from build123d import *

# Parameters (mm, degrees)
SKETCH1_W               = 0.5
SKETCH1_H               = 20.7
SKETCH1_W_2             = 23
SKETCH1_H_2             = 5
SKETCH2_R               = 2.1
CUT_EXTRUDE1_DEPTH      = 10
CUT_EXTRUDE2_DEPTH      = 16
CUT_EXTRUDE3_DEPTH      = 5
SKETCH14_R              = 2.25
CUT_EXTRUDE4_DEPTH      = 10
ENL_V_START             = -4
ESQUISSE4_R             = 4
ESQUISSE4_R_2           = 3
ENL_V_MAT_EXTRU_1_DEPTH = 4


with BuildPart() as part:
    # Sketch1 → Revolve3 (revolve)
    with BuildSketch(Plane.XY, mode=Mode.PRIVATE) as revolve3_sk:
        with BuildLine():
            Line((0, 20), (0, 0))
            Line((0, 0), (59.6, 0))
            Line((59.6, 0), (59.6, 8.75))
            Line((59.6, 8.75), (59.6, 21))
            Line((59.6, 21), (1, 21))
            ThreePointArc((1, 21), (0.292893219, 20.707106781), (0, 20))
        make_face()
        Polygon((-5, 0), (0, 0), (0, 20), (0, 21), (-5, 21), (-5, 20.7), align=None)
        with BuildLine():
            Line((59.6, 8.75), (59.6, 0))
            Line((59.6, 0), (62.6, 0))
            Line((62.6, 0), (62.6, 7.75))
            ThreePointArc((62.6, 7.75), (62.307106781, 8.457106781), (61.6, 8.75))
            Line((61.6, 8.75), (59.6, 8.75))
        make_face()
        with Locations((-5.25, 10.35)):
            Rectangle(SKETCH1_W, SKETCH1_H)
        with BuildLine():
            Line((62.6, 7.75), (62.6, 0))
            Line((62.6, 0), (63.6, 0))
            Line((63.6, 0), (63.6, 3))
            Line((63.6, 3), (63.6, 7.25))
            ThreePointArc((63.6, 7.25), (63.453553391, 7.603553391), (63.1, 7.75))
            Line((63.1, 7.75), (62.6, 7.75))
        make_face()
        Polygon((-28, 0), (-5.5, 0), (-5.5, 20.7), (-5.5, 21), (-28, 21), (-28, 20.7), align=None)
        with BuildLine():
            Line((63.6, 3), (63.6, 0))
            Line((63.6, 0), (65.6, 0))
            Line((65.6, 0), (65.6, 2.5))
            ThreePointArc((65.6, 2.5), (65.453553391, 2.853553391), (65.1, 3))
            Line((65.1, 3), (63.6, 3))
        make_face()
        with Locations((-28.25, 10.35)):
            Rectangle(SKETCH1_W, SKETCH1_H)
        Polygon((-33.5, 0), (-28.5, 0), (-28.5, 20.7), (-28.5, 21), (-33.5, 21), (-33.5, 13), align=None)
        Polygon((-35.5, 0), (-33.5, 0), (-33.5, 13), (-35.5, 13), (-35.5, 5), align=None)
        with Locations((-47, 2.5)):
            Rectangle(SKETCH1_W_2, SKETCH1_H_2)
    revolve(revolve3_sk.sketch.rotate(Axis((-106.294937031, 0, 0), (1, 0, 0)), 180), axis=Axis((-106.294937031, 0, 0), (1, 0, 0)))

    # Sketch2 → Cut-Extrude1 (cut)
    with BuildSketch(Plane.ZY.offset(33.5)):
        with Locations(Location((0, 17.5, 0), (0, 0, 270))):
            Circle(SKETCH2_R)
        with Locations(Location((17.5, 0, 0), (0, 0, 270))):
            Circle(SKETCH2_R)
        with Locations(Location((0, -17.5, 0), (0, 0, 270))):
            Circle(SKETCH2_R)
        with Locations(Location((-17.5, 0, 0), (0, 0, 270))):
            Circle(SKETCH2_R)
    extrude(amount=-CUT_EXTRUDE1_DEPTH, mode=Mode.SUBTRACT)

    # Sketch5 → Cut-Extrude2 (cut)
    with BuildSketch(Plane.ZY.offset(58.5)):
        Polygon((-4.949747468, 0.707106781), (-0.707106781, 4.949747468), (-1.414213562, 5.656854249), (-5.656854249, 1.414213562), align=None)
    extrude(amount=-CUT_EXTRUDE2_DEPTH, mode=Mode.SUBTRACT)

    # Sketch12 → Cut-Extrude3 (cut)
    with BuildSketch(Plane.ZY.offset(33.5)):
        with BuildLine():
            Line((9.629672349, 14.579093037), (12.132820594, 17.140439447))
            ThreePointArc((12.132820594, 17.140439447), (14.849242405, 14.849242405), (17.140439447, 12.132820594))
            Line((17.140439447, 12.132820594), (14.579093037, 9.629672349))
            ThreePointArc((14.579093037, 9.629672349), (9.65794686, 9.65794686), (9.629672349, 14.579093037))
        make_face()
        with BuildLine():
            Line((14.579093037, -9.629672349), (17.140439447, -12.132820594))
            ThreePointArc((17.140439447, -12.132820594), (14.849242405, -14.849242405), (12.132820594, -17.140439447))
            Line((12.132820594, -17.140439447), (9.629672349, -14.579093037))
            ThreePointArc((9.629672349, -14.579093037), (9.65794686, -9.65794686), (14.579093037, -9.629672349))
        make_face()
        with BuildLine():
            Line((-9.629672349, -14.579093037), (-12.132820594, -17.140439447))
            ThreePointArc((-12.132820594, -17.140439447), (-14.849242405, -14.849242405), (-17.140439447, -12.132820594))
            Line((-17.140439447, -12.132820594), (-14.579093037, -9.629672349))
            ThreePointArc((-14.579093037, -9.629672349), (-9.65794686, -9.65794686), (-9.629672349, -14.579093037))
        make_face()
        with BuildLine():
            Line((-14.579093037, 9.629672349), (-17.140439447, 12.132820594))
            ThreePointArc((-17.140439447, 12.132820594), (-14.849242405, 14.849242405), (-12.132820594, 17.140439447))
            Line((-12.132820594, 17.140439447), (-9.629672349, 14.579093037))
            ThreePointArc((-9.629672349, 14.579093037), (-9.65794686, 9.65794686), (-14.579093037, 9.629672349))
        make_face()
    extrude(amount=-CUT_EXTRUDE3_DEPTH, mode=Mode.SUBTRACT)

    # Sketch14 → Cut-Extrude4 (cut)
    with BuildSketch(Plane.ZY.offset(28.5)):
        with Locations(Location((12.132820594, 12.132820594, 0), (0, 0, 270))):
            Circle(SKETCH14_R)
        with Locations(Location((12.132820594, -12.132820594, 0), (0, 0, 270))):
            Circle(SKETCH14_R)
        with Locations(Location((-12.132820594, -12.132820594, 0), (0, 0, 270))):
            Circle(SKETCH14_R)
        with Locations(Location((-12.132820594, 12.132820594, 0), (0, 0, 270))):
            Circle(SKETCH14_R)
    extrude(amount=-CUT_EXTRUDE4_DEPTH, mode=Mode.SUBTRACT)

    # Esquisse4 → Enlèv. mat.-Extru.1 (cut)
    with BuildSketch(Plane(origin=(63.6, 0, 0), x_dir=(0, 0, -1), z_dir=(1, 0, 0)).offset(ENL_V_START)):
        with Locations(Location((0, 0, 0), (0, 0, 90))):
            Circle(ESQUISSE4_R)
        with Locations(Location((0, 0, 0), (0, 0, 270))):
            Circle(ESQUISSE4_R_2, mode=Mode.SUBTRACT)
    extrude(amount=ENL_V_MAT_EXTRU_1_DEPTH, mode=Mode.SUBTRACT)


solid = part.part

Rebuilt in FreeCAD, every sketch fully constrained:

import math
import FreeCAD as App
import Part
import Sketcher
from FreeCAD import Vector
Q = App.Units.Quantity


def add_polygon(sketch, points):
    """Adds a closed chain of lines whose ends are joined by coincident constraints."""
    first, n = sketch.GeometryCount, len(points)
    for a, b in zip(points, points[1:] + points[:1]):
        sketch.addGeometry(Part.LineSegment(App.Vector(*a, 0), App.Vector(*b, 0)), False)
    for i in range(n):
        sketch.addConstraint(Sketcher.Constraint("Coincident", first + i, 2, first + (i + 1) % n, 1))

doc = App.newDocument("Part")
body = doc.addObject("PartDesign::Body", "Body")

# Sketch on XY plane
sketch1 = body.newObject("Sketcher::SketchObject", "Sketch")
sketch1.AttachmentSupport = (doc.getObject("XY_Plane"), [""])
sketch1.MapMode = "FlatFace"
sketch1.addGeometry(Part.LineSegment(Vector(59.6, 8.75, 0), Vector(59.6, 21, 0)), False)
sketch1.addGeometry(Part.LineSegment(Vector(59.6, 21, 0), Vector(1, 21, 0)), False)
sketch1.addGeometry(Part.ArcOfCircle(Part.Circle(Vector(1, 20, 0), Vector(0, 0, 1), 1), math.radians(90), math.radians(180)), False)
sketch1.addGeometry(Part.LineSegment(Vector(0, 20, 0), Vector(0, 21, 0)), False)
sketch1.addGeometry(Part.LineSegment(Vector(0, 21, 0), Vector(-5, 21, 0)), False)
sketch1.addGeometry(Part.LineSegment(Vector(-5, 21, 0), Vector(-5, 20.7, 0)), False)
sketch1.addGeometry(Part.LineSegment(Vector(-5, 20.7, 0), Vector(-5.5, 20.7, 0)), False)
sketch1.addGeometry(Part.LineSegment(Vector(-5.5, 20.7, 0), Vector(-5.5, 21, 0)), False)
sketch1.addGeometry(Part.LineSegment(Vector(-5.5, 21, 0), Vector(-28, 21, 0)), False)
sketch1.addGeometry(Part.LineSegment(Vector(-28, 21, 0), Vector(-28, 20.7, 0)), False)
sketch1.addGeometry(Part.LineSegment(Vector(-28, 20.7, 0), Vector(-28.5, 20.7, 0)), False)
sketch1.addGeometry(Part.LineSegment(Vector(-28.5, 20.7, 0), Vector(-28.5, 21, 0)), False)
sketch1.addGeometry(Part.LineSegment(Vector(-28.5, 21, 0), Vector(-33.5, 21, 0)), False)
sketch1.addGeometry(Part.LineSegment(Vector(-33.5, 21, 0), Vector(-33.5, 13, 0)), False)
sketch1.addGeometry(Part.LineSegment(Vector(-33.5, 13, 0), Vector(-35.5, 13, 0)), False)
sketch1.addGeometry(Part.LineSegment(Vector(-35.5, 13, 0), Vector(-35.5, 5, 0)), False)
sketch1.addGeometry(Part.LineSegment(Vector(-35.5, 5, 0), Vector(-58.5, 5, 0)), False)
sketch1.addGeometry(Part.LineSegment(Vector(-58.5, 5, 0), Vector(-58.5, 0, 0)), False)
sketch1.addGeometry(Part.LineSegment(Vector(-58.5, 0, 0), Vector(65.6, 0, 0)), False)
sketch1.addGeometry(Part.LineSegment(Vector(65.6, 0, 0), Vector(65.6, 2.5, 0)), False)
sketch1.addGeometry(Part.ArcOfCircle(Part.Circle(Vector(65.1, 2.5, 0), Vector(0, 0, 1), 0.5), math.radians(0), math.radians(90)), False)
sketch1.addGeometry(Part.LineSegment(Vector(65.1, 3, 0), Vector(63.6, 3, 0)), False)
sketch1.addGeometry(Part.LineSegment(Vector(63.6, 3, 0), Vector(63.6, 7.25, 0)), False)
sketch1.addGeometry(Part.ArcOfCircle(Part.Circle(Vector(63.1, 7.25, 0), Vector(0, 0, 1), 0.5), math.radians(0), math.radians(90)), False)
sketch1.addGeometry(Part.LineSegment(Vector(63.1, 7.75, 0), Vector(62.6, 7.75, 0)), False)
sketch1.addGeometry(Part.ArcOfCircle(Part.Circle(Vector(61.6, 7.75, 0), Vector(0, 0, 1), 1), math.radians(0), math.radians(90)), False)
sketch1.addGeometry(Part.LineSegment(Vector(61.6, 8.75, 0), Vector(59.6, 8.75, 0)), False)
sketch1.addConstraint(Sketcher.Constraint("Coincident", 0, 2, 1, 1))
sketch1.addConstraint(Sketcher.Constraint("Tangent", 1, 2, 2, 1))
sketch1.addConstraint(Sketcher.Constraint("Tangent", 2, 2, 3, 1))
sketch1.addConstraint(Sketcher.Constraint("Coincident", 3, 2, 4, 1))
sketch1.addConstraint(Sketcher.Constraint("Coincident", 4, 2, 5, 1))
sketch1.addConstraint(Sketcher.Constraint("Coincident", 5, 2, 6, 1))
sketch1.addConstraint(Sketcher.Constraint("Coincident", 6, 2, 7, 1))
sketch1.addConstraint(Sketcher.Constraint("Coincident", 7, 2, 8, 1))
sketch1.addConstraint(Sketcher.Constraint("Coincident", 8, 2, 9, 1))
sketch1.addConstraint(Sketcher.Constraint("Coincident", 9, 2, 10, 1))
sketch1.addConstraint(Sketcher.Constraint("Coincident", 10, 2, 11, 1))
sketch1.addConstraint(Sketcher.Constraint("Coincident", 11, 2, 12, 1))
sketch1.addConstraint(Sketcher.Constraint("Coincident", 12, 2, 13, 1))
sketch1.addConstraint(Sketcher.Constraint("Coincident", 13, 2, 14, 1))
sketch1.addConstraint(Sketcher.Constraint("Coincident", 14, 2, 15, 1))
sketch1.addConstraint(Sketcher.Constraint("Coincident", 15, 2, 16, 1))
sketch1.addConstraint(Sketcher.Constraint("Coincident", 16, 2, 17, 1))
sketch1.addConstraint(Sketcher.Constraint("Coincident", 17, 2, 18, 1))
sketch1.addConstraint(Sketcher.Constraint("Coincident", 18, 2, 19, 1))
sketch1.addConstraint(Sketcher.Constraint("Tangent", 19, 2, 20, 1))
sketch1.addConstraint(Sketcher.Constraint("Tangent", 20, 2, 21, 1))
sketch1.addConstraint(Sketcher.Constraint("Coincident", 21, 2, 22, 1))
sketch1.addConstraint(Sketcher.Constraint("Tangent", 22, 2, 23, 1))
sketch1.addConstraint(Sketcher.Constraint("Tangent", 23, 2, 24, 1))
sketch1.addConstraint(Sketcher.Constraint("Coincident", 24, 2, 25, 1))
sketch1.addConstraint(Sketcher.Constraint("Tangent", 25, 2, 26, 1))
sketch1.addConstraint(Sketcher.Constraint("Coincident", 26, 2, 0, 1))
sketch1.addConstraint(Sketcher.Constraint("Vertical", 0))
sketch1.addConstraint(Sketcher.Constraint("Horizontal", 1))
sketch1.addConstraint(Sketcher.Constraint("Vertical", 3))
sketch1.addConstraint(Sketcher.Constraint("Horizontal", 4))
sketch1.addConstraint(Sketcher.Constraint("Vertical", 5))
sketch1.addConstraint(Sketcher.Constraint("Horizontal", 6))
sketch1.addConstraint(Sketcher.Constraint("Vertical", 7))
sketch1.addConstraint(Sketcher.Constraint("Horizontal", 8))
sketch1.addConstraint(Sketcher.Constraint("Vertical", 9))
sketch1.addConstraint(Sketcher.Constraint("Horizontal", 10))
sketch1.addConstraint(Sketcher.Constraint("Vertical", 11))
sketch1.addConstraint(Sketcher.Constraint("Horizontal", 12))
sketch1.addConstraint(Sketcher.Constraint("Vertical", 13))
sketch1.addConstraint(Sketcher.Constraint("Horizontal", 14))
sketch1.addConstraint(Sketcher.Constraint("Vertical", 15))
sketch1.addConstraint(Sketcher.Constraint("Horizontal", 16))
sketch1.addConstraint(Sketcher.Constraint("Vertical", 17))
sketch1.addConstraint(Sketcher.Constraint("Horizontal", 18))
sketch1.addConstraint(Sketcher.Constraint("Vertical", 19))
sketch1.addConstraint(Sketcher.Constraint("Horizontal", 21))
sketch1.addConstraint(Sketcher.Constraint("Vertical", 22))
sketch1.addConstraint(Sketcher.Constraint("Horizontal", 24))
sketch1.addConstraint(Sketcher.Constraint("Horizontal", 26))
sketch1.addConstraint(Sketcher.Constraint("Equal", 20, 23))
sketch1.addConstraint(Sketcher.Constraint("Equal", 2, 25))
sketch1.addConstraint(Sketcher.Constraint("PointOnObject", 2, 2, -2))
sketch1.addConstraint(Sketcher.Constraint("PointOnObject", 17, 2, -1))
sketch1.addConstraint(Sketcher.Constraint("Horizontal", 1, 2, 3, 2))
sketch1.addConstraint(Sketcher.Constraint("Horizontal", 4, 2, 7, 2))
sketch1.addConstraint(Sketcher.Constraint("Horizontal", 6, 2, 9, 2))
sketch1.addConstraint(Sketcher.Constraint("Horizontal", 8, 2, 11, 2))
sketch1.addConstraint(Sketcher.Constraint("Horizontal", 25, 3, 23, 2))
sketch1.addConstraint(Sketcher.Constraint("Equal", 6, 10))
sketch1.addConstraint(Sketcher.Constraint("Equal", 4, 12))
sketch1.addConstraint(Sketcher.Constraint("Equal", 10, 24))
sketch1.addConstraint(Sketcher.Constraint("Equal", 14, 26))
sketch1.addConstraint(Sketcher.Constraint("Equal", 13, 15))
sketch1.addConstraint(Sketcher.Constraint("Equal", 12, 17))
sketch1.addConstraint(Sketcher.Constraint("Radius", 2, Q("1 mm")))
sketch1.addConstraint(Sketcher.Constraint("Radius", 20, Q("0.5 mm")))
sketch1.addConstraint(Sketcher.Constraint("DistanceX", 4, 2, 4, 1, Q("5 mm")))
sketch1.addConstraint(Sketcher.Constraint("DistanceX", 14, 2, 14, 1, Q("2 mm")))
sketch1.addConstraint(Sketcher.Constraint("DistanceX", 16, 2, 16, 1, Q("23 mm")))
sketch1.addConstraint(Sketcher.Constraint("DistanceY", 13, 2, 13, 1, Q("8 mm")))
sketch1.addConstraint(Sketcher.Constraint("DistanceX", 1, 2, 1, 1, Q("58.6 mm")))
sketch1.addConstraint(Sketcher.Constraint("DistanceX", 6, 2, 6, 1, Q("0.5 mm")))
sketch1.addConstraint(Sketcher.Constraint("DistanceX", 8, 2, 8, 1, Q("22.5 mm")))
sketch1.addConstraint(Sketcher.Constraint("DistanceX", 18, 1, 18, 2, Q("124.1 mm")))
sketch1.addConstraint(Sketcher.Constraint("DistanceY", 5, 2, 5, 1, Q("0.3 mm")))
sketch1.addConstraint(Sketcher.Constraint("DistanceY", 19, 1, 19, 2, Q("2.5 mm")))
sketch1.addConstraint(Sketcher.Constraint("DistanceY", 0, 1, 0, 2, Q("12.25 mm")))
revolution = body.newObject("PartDesign::Revolution", "Revolution")
revolution.Profile = sketch1
revolution.ReferenceAxis = (sketch1, ["H_Axis"])
revolution.Angle = 360

# Sketch on YZ plane
sketch2 = body.newObject("Sketcher::SketchObject", "Sketch001")
sketch2.AttachmentSupport = (doc.getObject("YZ_Plane"), [""])
sketch2.MapMode = "FlatFace"
sketch2.AttachmentOffset = App.Placement(Vector(0, 0, -33.5), App.Rotation())
sketch2.addGeometry(Part.Circle(Vector(17.5, 0, 0), Vector(0, 0, 1), 2.1), False)
sketch2.addGeometry(Part.Circle(Vector(0, 17.5, 0), Vector(0, 0, 1), 2.1), False)
sketch2.addGeometry(Part.Circle(Vector(-17.5, 0, 0), Vector(0, 0, 1), 2.1), False)
sketch2.addGeometry(Part.Circle(Vector(0, -17.5, 0), Vector(0, 0, 1), 2.1), False)
sketch2.addConstraint(Sketcher.Constraint("Equal", 0, 1))
sketch2.addConstraint(Sketcher.Constraint("Equal", 1, 2))
sketch2.addConstraint(Sketcher.Constraint("Equal", 2, 3))
sketch2.addConstraint(Sketcher.Constraint("Symmetric", 0, 3, 2, 3, -1, 1))
sketch2.addConstraint(Sketcher.Constraint("Symmetric", 1, 3, 3, 3, -1, 1))
sketch2.addConstraint(Sketcher.Constraint("PointOnObject", 0, 3, -1))
sketch2.addConstraint(Sketcher.Constraint("PointOnObject", 1, 3, -2))
sketch2.addConstraint(Sketcher.Constraint("Diameter", 0, Q("4.2 mm")))
sketch2.addConstraint(Sketcher.Constraint("DistanceX", 2, 3, 0, 3, Q("35 mm")))
sketch2.addConstraint(Sketcher.Constraint("DistanceY", 3, 3, 1, 3, Q("35 mm")))
pocket1 = body.newObject("PartDesign::Pocket", "Pocket")
pocket1.Profile = sketch2
pocket1.Length = 10
pocket1.Reversed = True

# Sketch on YZ plane
sketch3 = body.newObject("Sketcher::SketchObject", "Sketch002")
sketch3.AttachmentSupport = (doc.getObject("YZ_Plane"), [""])
sketch3.MapMode = "FlatFace"
sketch3.AttachmentOffset = App.Placement(Vector(0, 0, -58.5), App.Rotation())
add_polygon(sketch3, [(0.7, -4.9), (4.9, -0.7), (5.7, -1.4), (1.4, -5.7)])  # lines 0-3
sketch3.addConstraint(Sketcher.Constraint("Perpendicular", 0, 1))
sketch3.addConstraint(Sketcher.Constraint("Perpendicular", 1, 2))
sketch3.addConstraint(Sketcher.Constraint("Perpendicular", 2, 3))
sketch3.addConstraint(Sketcher.Constraint("Angle", 0, Q("45 deg")))
sketch3.addConstraint(Sketcher.Constraint("Distance", 0, Q("6 mm")))
sketch3.addConstraint(Sketcher.Constraint("Distance", 1, Q("1 mm")))
sketch3.addConstraint(Sketcher.Constraint("DistanceX", -1, 1, 0, 2, Q("4.949747 mm")))
sketch3.addConstraint(Sketcher.Constraint("DistanceY", 0, 2, -1, 1, Q("0.707107 mm")))
pocket2 = body.newObject("PartDesign::Pocket", "Pocket001")
pocket2.Profile = sketch3
pocket2.Length = 16
pocket2.Reversed = True

# Sketch on YZ plane
sketch4 = body.newObject("Sketcher::SketchObject", "Sketch003")
sketch4.AttachmentSupport = (doc.getObject("YZ_Plane"), [""])
sketch4.MapMode = "FlatFace"
sketch4.AttachmentOffset = App.Placement(Vector(0, 0, -33.5), App.Rotation())
sketch4.addGeometry(Part.LineSegment(Vector(17.1, 12.1, 0), Vector(14.6, 9.6, 0)), False)
sketch4.addGeometry(Part.ArcOfCircle(Part.Circle(Vector(12.1, 12.1, 0), Vector(0, 0, 1), 3.5), math.radians(136), math.radians(314)), False)
sketch4.addGeometry(Part.LineSegment(Vector(9.6, 14.6, 0), Vector(12.1, 17.1, 0)), False)
sketch4.addGeometry(Part.ArcOfCircle(Part.Circle(Vector(0, 0, 0), Vector(0, 0, 1), 21), math.radians(35.29), math.radians(54.71)), False)
sketch4.addGeometry(Part.LineSegment(Vector(-12.1, 17.1, 0), Vector(-9.6, 14.6, 0)), False)
sketch4.addGeometry(Part.ArcOfCircle(Part.Circle(Vector(-12.1, 12.1, 0), Vector(0, 0, 1), 3.5), math.radians(-134), math.radians(44)), False)
sketch4.addGeometry(Part.LineSegment(Vector(-14.6, 9.6, 0), Vector(-17.1, 12.1, 0)), False)
sketch4.addGeometry(Part.ArcOfCircle(Part.Circle(Vector(0, 0, 0), Vector(0, 0, 1), 21), math.radians(125.29), math.radians(144.71)), False)
sketch4.addGeometry(Part.LineSegment(Vector(-17.1, -12.1, 0), Vector(-14.6, -9.6, 0)), False)
sketch4.addGeometry(Part.ArcOfCircle(Part.Circle(Vector(-12.1, -12.1, 0), Vector(0, 0, 1), 3.5), math.radians(-44), math.radians(134)), False)
sketch4.addGeometry(Part.LineSegment(Vector(-9.6, -14.6, 0), Vector(-12.1, -17.1, 0)), False)
sketch4.addGeometry(Part.ArcOfCircle(Part.Circle(Vector(0, 0, 0), Vector(0, 0, 1), 21), math.radians(-144.71), math.radians(-125.29)), False)
sketch4.addGeometry(Part.LineSegment(Vector(12.1, -17.1, 0), Vector(9.6, -14.6, 0)), False)
sketch4.addGeometry(Part.ArcOfCircle(Part.Circle(Vector(12.1, -12.1, 0), Vector(0, 0, 1), 3.5), math.radians(46), math.radians(224)), False)
sketch4.addGeometry(Part.LineSegment(Vector(14.6, -9.6, 0), Vector(17.1, -12.1, 0)), False)
sketch4.addGeometry(Part.ArcOfCircle(Part.Circle(Vector(0, 0, 0), Vector(0, 0, 1), 21), math.radians(-54.71), math.radians(-35.29)), False)
sketch4.addConstraint(Sketcher.Constraint("Tangent", 0, 2, 1, 2))
sketch4.addConstraint(Sketcher.Constraint("Tangent", 1, 1, 2, 1))
sketch4.addConstraint(Sketcher.Constraint("Coincident", 2, 2, 3, 2))
sketch4.addConstraint(Sketcher.Constraint("Coincident", 3, 1, 0, 1))
sketch4.addConstraint(Sketcher.Constraint("Tangent", 4, 2, 5, 2))
sketch4.addConstraint(Sketcher.Constraint("Tangent", 5, 1, 6, 1))
sketch4.addConstraint(Sketcher.Constraint("Coincident", 6, 2, 7, 2))
sketch4.addConstraint(Sketcher.Constraint("Coincident", 7, 1, 4, 1))
sketch4.addConstraint(Sketcher.Constraint("Tangent", 8, 2, 9, 2))
sketch4.addConstraint(Sketcher.Constraint("Tangent", 9, 1, 10, 1))
sketch4.addConstraint(Sketcher.Constraint("Coincident", 10, 2, 11, 2))
sketch4.addConstraint(Sketcher.Constraint("Coincident", 11, 1, 8, 1))
sketch4.addConstraint(Sketcher.Constraint("Tangent", 12, 2, 13, 2))
sketch4.addConstraint(Sketcher.Constraint("Tangent", 13, 1, 14, 1))
sketch4.addConstraint(Sketcher.Constraint("Coincident", 14, 2, 15, 2))
sketch4.addConstraint(Sketcher.Constraint("Coincident", 15, 1, 12, 1))
sketch4.addConstraint(Sketcher.Constraint("Coincident", 3, 3, -1, 1))
sketch4.addConstraint(Sketcher.Constraint("Coincident", 7, 3, -1, 1))
sketch4.addConstraint(Sketcher.Constraint("Coincident", 11, 3, -1, 1))
sketch4.addConstraint(Sketcher.Constraint("Coincident", 15, 3, -1, 1))
sketch4.addConstraint(Sketcher.Constraint("Equal", 1, 5))
sketch4.addConstraint(Sketcher.Constraint("Equal", 3, 7))
sketch4.addConstraint(Sketcher.Constraint("Equal", 5, 9))
sketch4.addConstraint(Sketcher.Constraint("Equal", 7, 11))
sketch4.addConstraint(Sketcher.Constraint("Equal", 9, 13))
sketch4.addConstraint(Sketcher.Constraint("Equal", 11, 15))
sketch4.addConstraint(Sketcher.Constraint("Symmetric", 1, 3, 9, 3, -1, 1))
sketch4.addConstraint(Sketcher.Constraint("Symmetric", 5, 3, 13, 3, -1, 1))
sketch4.addConstraint(Sketcher.Constraint("Symmetric", 1, 3, 5, 3, -2))
sketch4.addConstraint(Sketcher.Constraint("Perpendicular", 0, 4))
sketch4.addConstraint(Sketcher.Constraint("Perpendicular", 2, 6))
sketch4.addConstraint(Sketcher.Constraint("Perpendicular", 4, 8))
sketch4.addConstraint(Sketcher.Constraint("Perpendicular", 6, 10))
sketch4.addConstraint(Sketcher.Constraint("Perpendicular", 8, 12))
sketch4.addConstraint(Sketcher.Constraint("Perpendicular", 10, 14))
sketch4.addConstraint(Sketcher.Constraint("Horizontal", 5, 3, 3, 1))
sketch4.addConstraint(Sketcher.Constraint("Horizontal", 1, 1, 4, 2))
sketch4.addConstraint(Sketcher.Constraint("Vertical", 13, 3, 2, 2))
sketch4.addConstraint(Sketcher.Constraint("Radius", 3, Q("21 mm")))
sketch4.addConstraint(Sketcher.Constraint("Radius", 1, Q("3.5 mm")))
sketch4.addConstraint(Sketcher.Constraint("DistanceX", -1, 1, 1, 3, Q("12.132821 mm")))
pocket3 = body.newObject("PartDesign::Pocket", "Pocket002")
pocket3.Profile = sketch4
pocket3.Length = 5
pocket3.Reversed = True

# Sketch on YZ plane
sketch5 = body.newObject("Sketcher::SketchObject", "Sketch004")
sketch5.AttachmentSupport = (doc.getObject("YZ_Plane"), [""])
sketch5.MapMode = "FlatFace"
sketch5.AttachmentOffset = App.Placement(Vector(0, 0, -28.5), App.Rotation())
sketch5.addGeometry(Part.Circle(Vector(12.1, 12.1, 0), Vector(0, 0, 1), 2.2), False)
sketch5.addGeometry(Part.Circle(Vector(-12.1, 12.1, 0), Vector(0, 0, 1), 2.2), False)
sketch5.addGeometry(Part.Circle(Vector(-12.1, -12.1, 0), Vector(0, 0, 1), 2.2), False)
sketch5.addGeometry(Part.Circle(Vector(12.1, -12.1, 0), Vector(0, 0, 1), 2.2), False)
sketch5.addConstraint(Sketcher.Constraint("Equal", 0, 1))
sketch5.addConstraint(Sketcher.Constraint("Equal", 1, 2))
sketch5.addConstraint(Sketcher.Constraint("Equal", 2, 3))
sketch5.addConstraint(Sketcher.Constraint("Symmetric", 0, 3, 2, 3, -1, 1))
sketch5.addConstraint(Sketcher.Constraint("Symmetric", 1, 3, 3, 3, -1, 1))
sketch5.addConstraint(Sketcher.Constraint("Symmetric", 0, 3, 1, 3, -2))
sketch5.addConstraint(Sketcher.Constraint("Diameter", 0, Q("4.5 mm")))
sketch5.addConstraint(Sketcher.Constraint("DistanceX", -1, 1, 0, 3, Q("12.132821 mm")))
sketch5.addConstraint(Sketcher.Constraint("DistanceY", -1, 1, 0, 3, Q("12.132821 mm")))
pocket4 = body.newObject("PartDesign::Pocket", "Pocket003")
pocket4.Profile = sketch5
pocket4.Length = 10
pocket4.Reversed = True

# Sketch on YZ plane
sketch6 = body.newObject("Sketcher::SketchObject", "Sketch005")
sketch6.AttachmentSupport = (doc.getObject("YZ_Plane"), [""])
sketch6.MapMode = "FlatFace"
sketch6.AttachmentOffset = App.Placement(Vector(0, 0, 59.6), App.Rotation())
sketch6.addGeometry(Part.Circle(Vector(0, 0, 0), Vector(0, 0, 1), 4), False)
sketch6.addGeometry(Part.Circle(Vector(0, 0, 0), Vector(0, 0, 1), 3), False)
sketch6.addConstraint(Sketcher.Constraint("Coincident", 0, 3, -1, 1))
sketch6.addConstraint(Sketcher.Constraint("Coincident", 1, 3, -1, 1))
sketch6.addConstraint(Sketcher.Constraint("Diameter", 0, Q("8 mm")))
sketch6.addConstraint(Sketcher.Constraint("Diameter", 1, Q("6 mm")))
pocket5 = body.newObject("PartDesign::Pocket", "Pocket004")
pocket5.Profile = sketch6
pocket5.Length = 4
pocket5.Reversed = True

doc.recompute()
